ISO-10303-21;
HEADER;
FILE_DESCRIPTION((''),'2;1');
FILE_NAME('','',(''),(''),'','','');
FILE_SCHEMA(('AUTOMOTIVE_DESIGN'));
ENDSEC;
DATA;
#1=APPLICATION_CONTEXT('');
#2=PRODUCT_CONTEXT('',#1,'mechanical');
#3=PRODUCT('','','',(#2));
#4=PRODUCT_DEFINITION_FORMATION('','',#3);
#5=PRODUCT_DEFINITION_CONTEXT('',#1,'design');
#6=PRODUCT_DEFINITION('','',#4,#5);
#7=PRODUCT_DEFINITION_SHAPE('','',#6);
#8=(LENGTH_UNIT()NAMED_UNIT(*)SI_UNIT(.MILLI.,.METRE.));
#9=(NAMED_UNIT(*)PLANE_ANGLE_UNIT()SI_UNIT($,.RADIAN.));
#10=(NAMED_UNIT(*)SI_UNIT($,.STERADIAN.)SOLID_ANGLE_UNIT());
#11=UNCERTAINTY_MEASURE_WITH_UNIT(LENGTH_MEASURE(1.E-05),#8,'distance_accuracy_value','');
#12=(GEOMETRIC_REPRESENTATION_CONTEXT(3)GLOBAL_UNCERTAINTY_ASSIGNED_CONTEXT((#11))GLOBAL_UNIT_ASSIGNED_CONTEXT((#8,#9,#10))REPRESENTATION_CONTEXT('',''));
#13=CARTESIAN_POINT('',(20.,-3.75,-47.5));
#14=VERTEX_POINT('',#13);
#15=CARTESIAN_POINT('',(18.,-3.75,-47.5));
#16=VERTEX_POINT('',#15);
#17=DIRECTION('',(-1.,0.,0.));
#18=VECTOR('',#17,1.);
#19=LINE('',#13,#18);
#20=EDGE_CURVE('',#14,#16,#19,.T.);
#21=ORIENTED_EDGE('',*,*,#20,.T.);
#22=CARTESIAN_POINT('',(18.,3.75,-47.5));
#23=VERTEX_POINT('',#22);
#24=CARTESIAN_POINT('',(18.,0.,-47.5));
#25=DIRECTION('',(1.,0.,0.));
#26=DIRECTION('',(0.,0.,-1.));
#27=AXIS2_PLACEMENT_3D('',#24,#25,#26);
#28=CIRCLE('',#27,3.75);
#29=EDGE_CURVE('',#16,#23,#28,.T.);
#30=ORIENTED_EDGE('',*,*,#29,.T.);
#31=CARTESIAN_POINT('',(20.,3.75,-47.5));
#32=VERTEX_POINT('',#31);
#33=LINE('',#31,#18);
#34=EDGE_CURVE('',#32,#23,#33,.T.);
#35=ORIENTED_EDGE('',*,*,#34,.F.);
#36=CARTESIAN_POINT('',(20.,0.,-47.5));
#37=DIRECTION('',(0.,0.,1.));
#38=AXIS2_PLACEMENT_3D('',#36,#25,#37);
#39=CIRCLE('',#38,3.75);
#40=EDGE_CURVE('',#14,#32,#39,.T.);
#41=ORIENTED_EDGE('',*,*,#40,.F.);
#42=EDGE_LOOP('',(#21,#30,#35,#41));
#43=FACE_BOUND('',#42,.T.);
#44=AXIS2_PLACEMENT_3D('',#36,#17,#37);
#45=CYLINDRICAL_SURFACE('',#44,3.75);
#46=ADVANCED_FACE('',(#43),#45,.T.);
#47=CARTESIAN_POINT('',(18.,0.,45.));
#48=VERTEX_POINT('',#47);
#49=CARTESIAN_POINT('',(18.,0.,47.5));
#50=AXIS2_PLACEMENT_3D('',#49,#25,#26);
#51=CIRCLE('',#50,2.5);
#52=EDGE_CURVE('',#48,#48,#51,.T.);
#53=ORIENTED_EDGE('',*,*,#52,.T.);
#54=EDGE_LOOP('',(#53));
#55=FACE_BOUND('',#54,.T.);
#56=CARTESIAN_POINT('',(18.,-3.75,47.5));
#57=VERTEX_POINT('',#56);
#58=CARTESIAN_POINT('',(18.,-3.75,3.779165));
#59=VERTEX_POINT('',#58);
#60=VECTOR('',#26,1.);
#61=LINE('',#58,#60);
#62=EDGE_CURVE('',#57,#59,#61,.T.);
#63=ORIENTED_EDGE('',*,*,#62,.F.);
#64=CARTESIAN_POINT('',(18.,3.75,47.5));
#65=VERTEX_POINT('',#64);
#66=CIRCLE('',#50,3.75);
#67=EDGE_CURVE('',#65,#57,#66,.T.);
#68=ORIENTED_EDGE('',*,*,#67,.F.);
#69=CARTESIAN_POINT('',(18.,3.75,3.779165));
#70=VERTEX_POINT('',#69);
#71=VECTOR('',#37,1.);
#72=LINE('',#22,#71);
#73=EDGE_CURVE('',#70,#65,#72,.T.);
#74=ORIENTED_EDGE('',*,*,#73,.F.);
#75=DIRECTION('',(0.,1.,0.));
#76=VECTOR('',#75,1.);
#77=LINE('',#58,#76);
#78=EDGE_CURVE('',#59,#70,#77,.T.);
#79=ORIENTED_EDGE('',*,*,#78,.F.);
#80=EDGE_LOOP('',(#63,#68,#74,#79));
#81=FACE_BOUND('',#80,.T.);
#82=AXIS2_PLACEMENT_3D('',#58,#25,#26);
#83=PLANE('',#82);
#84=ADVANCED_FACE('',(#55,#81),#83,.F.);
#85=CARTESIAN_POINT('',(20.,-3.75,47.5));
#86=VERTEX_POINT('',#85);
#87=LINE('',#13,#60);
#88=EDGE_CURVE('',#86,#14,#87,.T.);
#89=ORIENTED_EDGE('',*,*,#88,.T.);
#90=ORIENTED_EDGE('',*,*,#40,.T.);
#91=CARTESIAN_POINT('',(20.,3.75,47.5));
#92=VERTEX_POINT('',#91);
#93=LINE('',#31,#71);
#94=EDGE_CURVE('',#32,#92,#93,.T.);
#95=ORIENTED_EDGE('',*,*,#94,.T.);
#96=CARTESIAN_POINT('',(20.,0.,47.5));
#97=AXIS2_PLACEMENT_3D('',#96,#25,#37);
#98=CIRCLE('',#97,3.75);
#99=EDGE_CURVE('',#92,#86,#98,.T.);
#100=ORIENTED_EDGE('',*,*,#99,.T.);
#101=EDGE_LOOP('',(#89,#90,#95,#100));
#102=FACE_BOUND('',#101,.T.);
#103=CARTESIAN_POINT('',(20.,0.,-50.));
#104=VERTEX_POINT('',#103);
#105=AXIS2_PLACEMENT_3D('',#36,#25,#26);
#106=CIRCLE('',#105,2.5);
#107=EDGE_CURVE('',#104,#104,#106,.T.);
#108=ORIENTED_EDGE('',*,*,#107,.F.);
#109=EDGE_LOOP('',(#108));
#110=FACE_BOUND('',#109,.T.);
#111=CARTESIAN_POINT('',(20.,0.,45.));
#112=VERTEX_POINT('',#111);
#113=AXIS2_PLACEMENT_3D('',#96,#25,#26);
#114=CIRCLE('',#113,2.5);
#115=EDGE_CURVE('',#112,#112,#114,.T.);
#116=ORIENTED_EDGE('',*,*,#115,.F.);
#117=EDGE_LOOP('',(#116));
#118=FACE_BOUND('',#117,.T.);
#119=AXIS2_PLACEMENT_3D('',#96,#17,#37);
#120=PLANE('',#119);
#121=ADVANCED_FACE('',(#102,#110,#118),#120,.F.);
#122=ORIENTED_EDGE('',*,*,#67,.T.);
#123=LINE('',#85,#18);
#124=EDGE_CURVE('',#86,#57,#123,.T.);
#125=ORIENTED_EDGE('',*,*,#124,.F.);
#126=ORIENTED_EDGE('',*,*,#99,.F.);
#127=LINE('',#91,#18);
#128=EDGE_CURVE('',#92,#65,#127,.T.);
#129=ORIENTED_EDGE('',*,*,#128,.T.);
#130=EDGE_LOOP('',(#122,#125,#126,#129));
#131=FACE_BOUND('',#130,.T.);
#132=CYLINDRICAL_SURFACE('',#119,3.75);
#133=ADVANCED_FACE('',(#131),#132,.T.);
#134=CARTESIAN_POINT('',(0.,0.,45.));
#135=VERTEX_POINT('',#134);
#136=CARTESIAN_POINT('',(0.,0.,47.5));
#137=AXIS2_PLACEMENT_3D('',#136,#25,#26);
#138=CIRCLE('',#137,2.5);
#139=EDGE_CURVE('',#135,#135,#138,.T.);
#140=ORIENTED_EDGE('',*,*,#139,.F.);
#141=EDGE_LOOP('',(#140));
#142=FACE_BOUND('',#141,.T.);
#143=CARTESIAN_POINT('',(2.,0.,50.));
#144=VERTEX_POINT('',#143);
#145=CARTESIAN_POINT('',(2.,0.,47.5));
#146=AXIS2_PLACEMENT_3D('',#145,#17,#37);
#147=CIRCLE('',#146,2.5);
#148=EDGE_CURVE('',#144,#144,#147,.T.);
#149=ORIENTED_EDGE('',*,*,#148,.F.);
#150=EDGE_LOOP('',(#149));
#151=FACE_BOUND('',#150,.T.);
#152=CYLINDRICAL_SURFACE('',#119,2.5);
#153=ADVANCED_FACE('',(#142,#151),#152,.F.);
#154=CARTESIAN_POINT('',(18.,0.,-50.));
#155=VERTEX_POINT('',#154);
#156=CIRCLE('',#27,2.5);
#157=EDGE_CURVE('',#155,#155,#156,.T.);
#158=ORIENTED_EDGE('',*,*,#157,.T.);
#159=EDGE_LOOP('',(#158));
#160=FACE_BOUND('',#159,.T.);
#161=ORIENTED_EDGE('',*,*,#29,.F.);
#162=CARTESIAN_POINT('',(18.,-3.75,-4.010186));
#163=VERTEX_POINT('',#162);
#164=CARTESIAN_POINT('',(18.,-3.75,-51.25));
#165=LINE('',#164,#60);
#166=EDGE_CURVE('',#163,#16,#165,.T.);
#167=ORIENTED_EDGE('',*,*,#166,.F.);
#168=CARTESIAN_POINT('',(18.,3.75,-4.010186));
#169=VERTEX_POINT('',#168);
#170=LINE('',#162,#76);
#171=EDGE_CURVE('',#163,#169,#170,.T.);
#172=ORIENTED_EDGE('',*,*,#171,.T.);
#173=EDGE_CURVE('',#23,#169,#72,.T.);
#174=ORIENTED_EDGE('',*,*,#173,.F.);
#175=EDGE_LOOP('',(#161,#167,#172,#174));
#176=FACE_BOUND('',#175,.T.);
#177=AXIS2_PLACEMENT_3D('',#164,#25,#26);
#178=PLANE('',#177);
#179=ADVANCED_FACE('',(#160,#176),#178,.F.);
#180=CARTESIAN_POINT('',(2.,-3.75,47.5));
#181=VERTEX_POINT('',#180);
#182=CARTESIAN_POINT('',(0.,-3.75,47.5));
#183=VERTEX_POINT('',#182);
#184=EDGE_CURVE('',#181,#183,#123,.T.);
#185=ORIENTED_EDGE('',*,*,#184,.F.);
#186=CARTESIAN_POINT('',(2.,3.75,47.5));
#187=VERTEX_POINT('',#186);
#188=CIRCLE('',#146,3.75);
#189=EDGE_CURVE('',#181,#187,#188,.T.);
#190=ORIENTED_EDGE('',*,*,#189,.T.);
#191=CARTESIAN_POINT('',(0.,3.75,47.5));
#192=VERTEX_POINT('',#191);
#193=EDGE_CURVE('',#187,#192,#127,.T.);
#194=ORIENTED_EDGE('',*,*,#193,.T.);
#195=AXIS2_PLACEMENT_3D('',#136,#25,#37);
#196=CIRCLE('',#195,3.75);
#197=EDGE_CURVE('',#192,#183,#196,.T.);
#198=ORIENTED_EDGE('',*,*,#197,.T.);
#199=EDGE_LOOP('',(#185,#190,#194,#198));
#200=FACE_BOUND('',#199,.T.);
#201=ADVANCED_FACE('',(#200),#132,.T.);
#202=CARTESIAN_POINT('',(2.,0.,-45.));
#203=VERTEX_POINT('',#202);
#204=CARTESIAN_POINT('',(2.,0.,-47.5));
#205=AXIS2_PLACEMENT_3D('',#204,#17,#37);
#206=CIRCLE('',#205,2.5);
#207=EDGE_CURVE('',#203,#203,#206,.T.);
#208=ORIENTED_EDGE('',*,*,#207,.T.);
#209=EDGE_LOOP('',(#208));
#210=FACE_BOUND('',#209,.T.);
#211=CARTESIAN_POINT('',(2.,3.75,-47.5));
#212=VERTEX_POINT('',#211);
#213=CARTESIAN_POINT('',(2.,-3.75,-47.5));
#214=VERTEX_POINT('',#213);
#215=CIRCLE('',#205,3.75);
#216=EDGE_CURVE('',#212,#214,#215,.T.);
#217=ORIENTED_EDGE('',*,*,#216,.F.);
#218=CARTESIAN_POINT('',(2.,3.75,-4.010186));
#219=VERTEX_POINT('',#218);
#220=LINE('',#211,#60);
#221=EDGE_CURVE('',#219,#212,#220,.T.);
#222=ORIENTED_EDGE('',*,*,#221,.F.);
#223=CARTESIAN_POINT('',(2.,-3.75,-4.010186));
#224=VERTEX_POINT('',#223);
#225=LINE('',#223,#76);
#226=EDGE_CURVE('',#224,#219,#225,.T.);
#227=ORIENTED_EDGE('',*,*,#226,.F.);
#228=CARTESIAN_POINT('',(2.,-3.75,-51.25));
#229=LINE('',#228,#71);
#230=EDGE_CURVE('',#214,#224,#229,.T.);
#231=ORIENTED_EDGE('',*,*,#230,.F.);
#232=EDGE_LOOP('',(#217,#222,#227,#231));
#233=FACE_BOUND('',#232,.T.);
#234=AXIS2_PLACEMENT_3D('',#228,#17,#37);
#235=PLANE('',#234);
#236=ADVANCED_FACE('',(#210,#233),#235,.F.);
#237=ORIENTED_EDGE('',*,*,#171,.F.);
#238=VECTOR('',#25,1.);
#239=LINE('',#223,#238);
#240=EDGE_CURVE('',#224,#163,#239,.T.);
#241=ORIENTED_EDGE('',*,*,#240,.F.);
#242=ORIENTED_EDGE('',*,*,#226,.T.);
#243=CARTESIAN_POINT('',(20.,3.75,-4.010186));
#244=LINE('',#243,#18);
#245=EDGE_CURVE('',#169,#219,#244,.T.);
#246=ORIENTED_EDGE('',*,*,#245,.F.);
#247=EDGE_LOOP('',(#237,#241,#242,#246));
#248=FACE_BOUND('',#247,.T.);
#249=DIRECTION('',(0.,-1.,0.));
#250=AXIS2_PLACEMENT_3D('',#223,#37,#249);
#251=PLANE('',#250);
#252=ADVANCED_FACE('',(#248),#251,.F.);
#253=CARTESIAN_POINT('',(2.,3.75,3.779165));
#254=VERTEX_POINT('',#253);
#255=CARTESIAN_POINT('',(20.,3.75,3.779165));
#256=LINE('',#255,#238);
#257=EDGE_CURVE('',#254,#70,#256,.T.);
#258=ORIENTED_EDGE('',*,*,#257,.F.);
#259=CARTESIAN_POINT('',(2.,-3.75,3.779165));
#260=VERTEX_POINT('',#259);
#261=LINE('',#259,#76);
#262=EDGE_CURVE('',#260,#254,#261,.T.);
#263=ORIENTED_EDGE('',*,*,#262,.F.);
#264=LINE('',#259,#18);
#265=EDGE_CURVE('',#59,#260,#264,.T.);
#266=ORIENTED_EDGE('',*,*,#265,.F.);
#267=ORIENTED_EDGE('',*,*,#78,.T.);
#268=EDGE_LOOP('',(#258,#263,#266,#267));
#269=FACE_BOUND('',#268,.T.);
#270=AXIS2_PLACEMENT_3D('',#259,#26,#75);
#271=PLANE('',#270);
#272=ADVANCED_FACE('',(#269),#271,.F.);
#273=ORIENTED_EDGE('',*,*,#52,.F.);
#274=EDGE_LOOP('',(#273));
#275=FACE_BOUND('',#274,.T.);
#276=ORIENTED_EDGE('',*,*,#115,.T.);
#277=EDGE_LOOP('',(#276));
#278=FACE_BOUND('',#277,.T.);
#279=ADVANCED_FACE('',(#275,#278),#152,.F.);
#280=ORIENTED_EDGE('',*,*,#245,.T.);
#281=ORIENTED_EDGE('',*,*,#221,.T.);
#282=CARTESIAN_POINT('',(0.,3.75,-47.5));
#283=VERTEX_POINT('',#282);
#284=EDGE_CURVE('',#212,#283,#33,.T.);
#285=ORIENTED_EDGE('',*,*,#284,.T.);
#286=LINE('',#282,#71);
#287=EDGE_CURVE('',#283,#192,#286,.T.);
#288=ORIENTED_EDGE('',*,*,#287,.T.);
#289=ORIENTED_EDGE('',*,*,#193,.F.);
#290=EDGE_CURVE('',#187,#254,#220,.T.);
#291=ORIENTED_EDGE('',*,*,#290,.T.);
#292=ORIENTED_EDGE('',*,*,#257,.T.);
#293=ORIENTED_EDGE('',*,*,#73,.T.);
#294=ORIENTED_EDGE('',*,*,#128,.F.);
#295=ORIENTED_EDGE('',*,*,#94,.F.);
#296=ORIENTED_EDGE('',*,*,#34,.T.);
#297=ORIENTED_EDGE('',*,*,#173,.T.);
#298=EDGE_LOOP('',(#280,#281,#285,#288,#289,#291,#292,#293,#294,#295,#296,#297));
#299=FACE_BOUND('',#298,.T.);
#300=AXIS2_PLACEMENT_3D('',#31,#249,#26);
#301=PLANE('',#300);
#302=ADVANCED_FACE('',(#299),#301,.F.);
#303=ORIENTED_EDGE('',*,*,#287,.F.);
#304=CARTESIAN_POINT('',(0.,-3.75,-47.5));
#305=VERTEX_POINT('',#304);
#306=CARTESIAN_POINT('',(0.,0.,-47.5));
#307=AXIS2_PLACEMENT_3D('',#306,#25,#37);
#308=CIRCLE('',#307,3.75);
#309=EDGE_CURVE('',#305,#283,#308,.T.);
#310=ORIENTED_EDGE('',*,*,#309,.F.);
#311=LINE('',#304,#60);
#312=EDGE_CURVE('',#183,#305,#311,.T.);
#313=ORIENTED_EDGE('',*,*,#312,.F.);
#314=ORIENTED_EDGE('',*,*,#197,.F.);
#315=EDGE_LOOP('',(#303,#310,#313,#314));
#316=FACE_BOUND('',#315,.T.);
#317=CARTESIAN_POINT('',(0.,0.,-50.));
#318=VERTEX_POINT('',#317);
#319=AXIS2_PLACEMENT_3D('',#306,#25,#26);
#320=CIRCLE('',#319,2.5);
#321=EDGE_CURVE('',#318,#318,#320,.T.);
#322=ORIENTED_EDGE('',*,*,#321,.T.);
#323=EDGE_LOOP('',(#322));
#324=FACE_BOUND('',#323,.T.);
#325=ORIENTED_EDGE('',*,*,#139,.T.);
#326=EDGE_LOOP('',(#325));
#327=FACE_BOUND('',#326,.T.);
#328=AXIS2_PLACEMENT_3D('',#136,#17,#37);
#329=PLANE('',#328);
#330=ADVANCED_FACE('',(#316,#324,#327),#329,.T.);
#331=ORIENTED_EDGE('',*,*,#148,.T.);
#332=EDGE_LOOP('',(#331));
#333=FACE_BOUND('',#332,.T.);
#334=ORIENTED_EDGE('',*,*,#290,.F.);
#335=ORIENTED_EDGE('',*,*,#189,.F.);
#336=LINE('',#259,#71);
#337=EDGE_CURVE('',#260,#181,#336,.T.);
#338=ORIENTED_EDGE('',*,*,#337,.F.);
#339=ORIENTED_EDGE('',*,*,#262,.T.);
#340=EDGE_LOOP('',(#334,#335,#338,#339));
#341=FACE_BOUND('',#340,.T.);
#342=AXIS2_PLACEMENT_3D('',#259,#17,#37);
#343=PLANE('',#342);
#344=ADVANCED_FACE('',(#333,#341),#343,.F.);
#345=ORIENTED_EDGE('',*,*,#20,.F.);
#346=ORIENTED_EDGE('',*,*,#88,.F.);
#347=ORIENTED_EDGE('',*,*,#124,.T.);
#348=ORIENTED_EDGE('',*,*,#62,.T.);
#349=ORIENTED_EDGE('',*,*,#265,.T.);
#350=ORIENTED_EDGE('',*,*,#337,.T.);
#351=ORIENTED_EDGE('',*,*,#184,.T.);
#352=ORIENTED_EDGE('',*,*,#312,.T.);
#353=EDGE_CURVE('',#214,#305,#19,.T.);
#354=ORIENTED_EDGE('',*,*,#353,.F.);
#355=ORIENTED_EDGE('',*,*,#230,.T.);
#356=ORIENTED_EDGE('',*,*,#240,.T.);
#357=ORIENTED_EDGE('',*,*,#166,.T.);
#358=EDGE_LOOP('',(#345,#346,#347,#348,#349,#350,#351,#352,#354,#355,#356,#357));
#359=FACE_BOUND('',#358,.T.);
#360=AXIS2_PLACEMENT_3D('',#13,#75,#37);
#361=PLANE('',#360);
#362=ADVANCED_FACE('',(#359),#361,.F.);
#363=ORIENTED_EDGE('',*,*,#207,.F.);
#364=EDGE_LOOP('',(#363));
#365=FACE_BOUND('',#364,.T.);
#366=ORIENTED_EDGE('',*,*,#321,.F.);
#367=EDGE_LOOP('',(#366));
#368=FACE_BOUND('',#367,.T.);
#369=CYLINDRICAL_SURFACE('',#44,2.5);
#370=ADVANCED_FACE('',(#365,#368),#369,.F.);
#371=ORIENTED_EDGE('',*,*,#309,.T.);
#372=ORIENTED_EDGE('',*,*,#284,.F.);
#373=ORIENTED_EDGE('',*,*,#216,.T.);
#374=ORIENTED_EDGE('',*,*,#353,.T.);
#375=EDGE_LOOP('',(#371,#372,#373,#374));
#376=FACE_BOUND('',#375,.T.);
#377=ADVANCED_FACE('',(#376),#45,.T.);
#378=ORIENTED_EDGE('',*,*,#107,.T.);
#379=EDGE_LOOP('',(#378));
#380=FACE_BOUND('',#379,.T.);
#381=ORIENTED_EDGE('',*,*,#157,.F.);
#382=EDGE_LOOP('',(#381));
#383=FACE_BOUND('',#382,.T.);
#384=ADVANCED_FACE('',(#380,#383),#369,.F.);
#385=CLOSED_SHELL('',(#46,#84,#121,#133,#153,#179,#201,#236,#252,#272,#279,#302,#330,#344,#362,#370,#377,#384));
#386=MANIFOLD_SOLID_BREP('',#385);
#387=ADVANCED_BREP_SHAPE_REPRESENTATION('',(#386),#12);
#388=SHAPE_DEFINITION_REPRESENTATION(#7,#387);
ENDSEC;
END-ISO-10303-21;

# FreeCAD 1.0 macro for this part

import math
import FreeCAD as App
import Part
import Sketcher

V = App.Vector

doc = App.newDocument("Part")
body = doc.addObject("PartDesign::Body", "Body")

# Sketch on YZ plane
sketch1 = body.newObject("Sketcher::SketchObject", "Sketch")
sketch1.AttachmentSupport = (doc.getObject("YZ_Plane"), [""])
sketch1.MapMode = "FlatFace"
sketch1.addGeometry(Part.LineSegment(V(3.8, -47.5, 0), V(3.8, 47.5, 0)), False)
sketch1.addGeometry(Part.ArcOfCircle(Part.Circle(V(0, 47.5, 0), V(0, 0, 1), 3.8), math.radians(0), math.radians(180)), False)
sketch1.addGeometry(Part.LineSegment(V(-3.8, 47.5, 0), V(-3.8, -47.5, 0)), False)
sketch1.addGeometry(Part.ArcOfCircle(Part.Circle(V(0, -47.5, 0), V(0, 0, 1), 3.8), math.radians(180), math.radians(360)), False)
sketch1.addGeometry(Part.Circle(V(0, 47.5, 0), V(0, 0, 1), 2.5), False)
sketch1.addGeometry(Part.Circle(V(0, -47.5, 0), V(0, 0, 1), 2.5), False)
sketch1.addConstraint(Sketcher.Constraint("Tangent", 0, 2, 1, 1))
sketch1.addConstraint(Sketcher.Constraint("Tangent", 1, 2, 2, 1))
sketch1.addConstraint(Sketcher.Constraint("Tangent", 2, 2, 3, 1))
sketch1.addConstraint(Sketcher.Constraint("Tangent", 3, 2, 0, 1))
sketch1.addConstraint(Sketcher.Constraint("Vertical", 0))
sketch1.addConstraint(Sketcher.Constraint("Vertical", 2))
sketch1.addConstraint(Sketcher.Constraint("Coincident", 4, 3, 1, 3))
sketch1.addConstraint(Sketcher.Constraint("Coincident", 5, 3, 3, 3))
sketch1.addConstraint(Sketcher.Constraint("Equal", 4, 5))
sketch1.addConstraint(Sketcher.Constraint("Symmetric", 1, 3, 3, 3, -1, 1))
sketch1.addConstraint(Sketcher.Constraint("Diameter", 4, 5.0))
sketch1.addConstraint(Sketcher.Constraint("DistanceY", 0, 1, 0, 2, 95.0))
sketch1.addConstraint(Sketcher.Constraint("Radius", 1, 3.75))
pad1 = body.newObject("PartDesign::Pad", "Pad")
pad1.Profile = sketch1
pad1.Length = 20

# Sketch on XZ plane
sketch2 = body.newObject("Sketcher::SketchObject", "Sketch001")
sketch2.AttachmentSupport = (doc.getObject("XZ_Plane"), [""])
sketch2.MapMode = "FlatFace"
sketch2.AttachmentOffset = App.Placement(V(0, 0, -3.75), App.Rotation())
sketch2.addGeometry(Part.LineSegment(V(2, -51, 0), V(2, -4, 0)), False)
sketch2.addGeometry(Part.LineSegment(V(2, -4, 0), V(18, -4, 0)), False)
sketch2.addGeometry(Part.LineSegment(V(18, -4, 0), V(18, -51, 0)), False)
sketch2.addGeometry(Part.LineSegment(V(18, -51, 0), V(2, -51, 0)), False)
sketch2.addGeometry(Part.LineSegment(V(2, 4, 0), V(2, 51, 0)), False)
sketch2.addGeometry(Part.LineSegment(V(2, 51, 0), V(18, 51, 0)), False)
sketch2.addGeometry(Part.LineSegment(V(18, 51, 0), V(18, 4, 0)), False)
sketch2.addGeometry(Part.LineSegment(V(18, 4, 0), V(2, 4, 0)), False)
sketch2.addConstraint(Sketcher.Constraint("Coincident", 0, 2, 1, 1))
sketch2.addConstraint(Sketcher.Constraint("Coincident", 1, 2, 2, 1))
sketch2.addConstraint(Sketcher.Constraint("Coincident", 2, 2, 3, 1))
sketch2.addConstraint(Sketcher.Constraint("Coincident", 3, 2, 0, 1))
sketch2.addConstraint(Sketcher.Constraint("Coincident", 4, 2, 5, 1))
sketch2.addConstraint(Sketcher.Constraint("Coincident", 5, 2, 6, 1))
sketch2.addConstraint(Sketcher.Constraint("Coincident", 6, 2, 7, 1))
sketch2.addConstraint(Sketcher.Constraint("Coincident", 7, 2, 4, 1))
sketch2.addConstraint(Sketcher.Constraint("Vertical", 0))
sketch2.addConstraint(Sketcher.Constraint("Horizontal", 1))
sketch2.addConstraint(Sketcher.Constraint("Vertical", 2))
sketch2.addConstraint(Sketcher.Constraint("Horizontal", 3))
sketch2.addConstraint(Sketcher.Constraint("Vertical", 4))
sketch2.addConstraint(Sketcher.Constraint("Horizontal", 5))
sketch2.addConstraint(Sketcher.Constraint("Vertical", 6))
sketch2.addConstraint(Sketcher.Constraint("Horizontal", 7))
sketch2.addConstraint(Sketcher.Constraint("Symmetric", 3, 2, 4, 2, -1))
sketch2.addConstraint(Sketcher.Constraint("Vertical", 2, 2, 5, 2))
sketch2.addConstraint(Sketcher.Constraint("DistanceX", 1, 1, 1, 2, 16.0))
sketch2.addConstraint(Sketcher.Constraint("DistanceX", -1, 1, 0, 2, 2.0))
sketch2.addConstraint(Sketcher.Constraint("DistanceY", 3, 2, 4, 2, 102.5))
sketch2.addConstraint(Sketcher.Constraint("DistanceY", 0, 1, 0, 2, 47.239814))
sketch2.addConstraint(Sketcher.Constraint("DistanceY", 4, 1, 4, 2, 47.470835))
pocket1 = body.newObject("PartDesign::Pocket", "Pocket")
pocket1.Profile = sketch2
pocket1.Type = "ThroughAll"
pocket1.Midplane = True

doc.recompute()
